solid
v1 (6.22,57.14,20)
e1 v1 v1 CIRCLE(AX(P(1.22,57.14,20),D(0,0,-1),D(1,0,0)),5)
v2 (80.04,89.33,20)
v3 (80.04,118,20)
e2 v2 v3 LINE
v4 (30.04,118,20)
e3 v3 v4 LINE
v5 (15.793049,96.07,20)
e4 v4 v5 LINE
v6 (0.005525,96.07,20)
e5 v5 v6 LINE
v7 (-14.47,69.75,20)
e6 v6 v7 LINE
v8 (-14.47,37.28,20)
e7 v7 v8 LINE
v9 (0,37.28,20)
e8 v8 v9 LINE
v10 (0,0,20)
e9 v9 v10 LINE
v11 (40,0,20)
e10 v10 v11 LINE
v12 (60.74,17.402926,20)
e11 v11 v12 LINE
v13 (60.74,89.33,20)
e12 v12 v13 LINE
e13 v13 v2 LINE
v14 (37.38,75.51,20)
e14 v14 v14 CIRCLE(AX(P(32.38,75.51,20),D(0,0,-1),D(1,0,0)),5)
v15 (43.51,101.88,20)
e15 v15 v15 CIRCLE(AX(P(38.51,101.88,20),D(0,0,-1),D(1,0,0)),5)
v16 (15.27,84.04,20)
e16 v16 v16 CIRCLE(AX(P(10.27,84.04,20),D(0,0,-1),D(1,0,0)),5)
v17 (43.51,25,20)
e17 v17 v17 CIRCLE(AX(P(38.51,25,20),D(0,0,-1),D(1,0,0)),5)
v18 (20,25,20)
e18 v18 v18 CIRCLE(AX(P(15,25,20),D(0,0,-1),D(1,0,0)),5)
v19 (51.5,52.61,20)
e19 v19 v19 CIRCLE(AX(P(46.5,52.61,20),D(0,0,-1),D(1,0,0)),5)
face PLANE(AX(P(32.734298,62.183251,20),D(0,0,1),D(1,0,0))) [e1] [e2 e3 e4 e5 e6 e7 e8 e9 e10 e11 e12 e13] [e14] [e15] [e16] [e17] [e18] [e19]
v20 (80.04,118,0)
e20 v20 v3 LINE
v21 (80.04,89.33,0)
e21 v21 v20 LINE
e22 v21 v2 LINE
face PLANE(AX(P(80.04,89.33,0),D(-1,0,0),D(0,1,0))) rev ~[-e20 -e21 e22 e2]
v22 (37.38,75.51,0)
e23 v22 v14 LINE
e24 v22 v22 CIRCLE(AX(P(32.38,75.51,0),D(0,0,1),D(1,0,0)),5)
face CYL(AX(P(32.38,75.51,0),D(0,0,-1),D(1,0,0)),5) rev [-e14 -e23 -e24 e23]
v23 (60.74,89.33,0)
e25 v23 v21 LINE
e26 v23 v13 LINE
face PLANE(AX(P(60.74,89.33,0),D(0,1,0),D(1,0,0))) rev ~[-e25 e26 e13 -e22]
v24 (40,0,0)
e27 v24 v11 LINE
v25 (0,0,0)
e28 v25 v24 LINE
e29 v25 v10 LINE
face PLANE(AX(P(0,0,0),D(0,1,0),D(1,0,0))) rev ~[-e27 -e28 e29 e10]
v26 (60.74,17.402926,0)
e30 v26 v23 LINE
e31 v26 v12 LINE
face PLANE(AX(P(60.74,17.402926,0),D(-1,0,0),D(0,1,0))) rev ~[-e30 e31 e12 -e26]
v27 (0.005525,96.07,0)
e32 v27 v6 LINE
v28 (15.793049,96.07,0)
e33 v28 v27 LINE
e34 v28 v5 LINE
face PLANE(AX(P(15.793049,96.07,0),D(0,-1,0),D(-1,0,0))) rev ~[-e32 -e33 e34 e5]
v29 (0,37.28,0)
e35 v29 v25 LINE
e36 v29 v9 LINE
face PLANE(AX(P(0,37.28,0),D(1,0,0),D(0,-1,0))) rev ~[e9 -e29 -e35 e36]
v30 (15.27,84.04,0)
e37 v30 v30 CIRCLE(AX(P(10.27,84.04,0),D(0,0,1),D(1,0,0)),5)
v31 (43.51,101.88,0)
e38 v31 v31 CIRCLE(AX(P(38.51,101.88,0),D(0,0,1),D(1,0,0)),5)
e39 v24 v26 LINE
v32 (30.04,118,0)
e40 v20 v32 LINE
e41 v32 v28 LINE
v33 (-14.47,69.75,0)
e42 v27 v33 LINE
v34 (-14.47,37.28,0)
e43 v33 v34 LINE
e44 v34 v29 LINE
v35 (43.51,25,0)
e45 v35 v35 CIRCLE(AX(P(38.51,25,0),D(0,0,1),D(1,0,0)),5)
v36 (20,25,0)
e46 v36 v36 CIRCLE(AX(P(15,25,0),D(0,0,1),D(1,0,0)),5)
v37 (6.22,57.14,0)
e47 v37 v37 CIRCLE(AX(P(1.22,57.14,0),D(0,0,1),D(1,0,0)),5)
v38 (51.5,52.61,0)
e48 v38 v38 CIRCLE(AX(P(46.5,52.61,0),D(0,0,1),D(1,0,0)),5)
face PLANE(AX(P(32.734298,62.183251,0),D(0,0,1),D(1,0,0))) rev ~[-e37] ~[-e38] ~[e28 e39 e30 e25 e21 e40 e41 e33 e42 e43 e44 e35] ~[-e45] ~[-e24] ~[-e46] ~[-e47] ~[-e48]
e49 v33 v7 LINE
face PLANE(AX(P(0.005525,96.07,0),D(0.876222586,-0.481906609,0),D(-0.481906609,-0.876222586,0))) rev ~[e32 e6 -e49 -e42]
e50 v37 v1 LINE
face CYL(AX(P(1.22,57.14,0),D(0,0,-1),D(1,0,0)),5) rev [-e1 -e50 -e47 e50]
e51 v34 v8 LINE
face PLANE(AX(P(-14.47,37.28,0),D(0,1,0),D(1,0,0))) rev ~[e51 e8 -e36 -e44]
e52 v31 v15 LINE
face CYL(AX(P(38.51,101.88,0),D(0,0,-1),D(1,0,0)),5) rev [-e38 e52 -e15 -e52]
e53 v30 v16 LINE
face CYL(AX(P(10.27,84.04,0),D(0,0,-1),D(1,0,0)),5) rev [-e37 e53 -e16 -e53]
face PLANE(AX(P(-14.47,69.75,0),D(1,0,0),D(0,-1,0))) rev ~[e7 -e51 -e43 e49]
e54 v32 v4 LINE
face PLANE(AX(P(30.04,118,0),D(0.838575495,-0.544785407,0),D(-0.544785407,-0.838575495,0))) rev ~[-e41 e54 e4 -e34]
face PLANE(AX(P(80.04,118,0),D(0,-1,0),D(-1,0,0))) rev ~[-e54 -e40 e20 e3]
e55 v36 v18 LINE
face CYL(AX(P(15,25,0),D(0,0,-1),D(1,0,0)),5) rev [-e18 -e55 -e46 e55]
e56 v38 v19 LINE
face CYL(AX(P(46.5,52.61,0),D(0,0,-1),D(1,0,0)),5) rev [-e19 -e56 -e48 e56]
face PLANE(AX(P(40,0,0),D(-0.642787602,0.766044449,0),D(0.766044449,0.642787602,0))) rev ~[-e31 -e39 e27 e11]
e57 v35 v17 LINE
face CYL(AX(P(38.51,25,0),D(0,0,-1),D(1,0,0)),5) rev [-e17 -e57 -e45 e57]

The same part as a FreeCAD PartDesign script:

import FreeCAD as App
import Part
import Sketcher
from FreeCAD import Vector
Q = App.Units.Quantity

doc = App.newDocument("Part")
body = doc.addObject("PartDesign::Body", "Body")

# Sketch on XY plane
sketch1 = body.newObject("Sketcher::SketchObject", "Sketch")
sketch1.AttachmentSupport = (doc.getObject("XY_Plane"), [""])
sketch1.MapMode = "FlatFace"
sketch1.addGeometry([
    Part.LineSegment(Vector(0, 37, 0), Vector(0, 0, 0)),  # 0
    Part.LineSegment(Vector(0, 0, 0), Vector(40, 0, 0)),  # 1
    Part.LineSegment(Vector(40, 0, 0), Vector(61, 17, 0)),  # 2
    Part.LineSegment(Vector(61, 17, 0), Vector(61, 89, 0)),  # 3
    Part.LineSegment(Vector(61, 89, 0), Vector(80, 89, 0)),  # 4
    Part.LineSegment(Vector(80, 89, 0), Vector(80, 118, 0)),  # 5
    Part.LineSegment(Vector(80, 118, 0), Vector(30, 118, 0)),  # 6
    Part.LineSegment(Vector(30, 118, 0), Vector(16, 96, 0)),  # 7
    Part.LineSegment(Vector(16, 96, 0), Vector(0, 96, 0)),  # 8
    Part.LineSegment(Vector(0, 96, 0), Vector(-14, 70, 0)),  # 9
    Part.LineSegment(Vector(-14, 70, 0), Vector(-14, 37, 0)),  # 10
    Part.LineSegment(Vector(-14, 37, 0), Vector(0, 37, 0)),  # 11
], False)
sketch1.addConstraint([
    Sketcher.Constraint("Coincident", 0, 2, 1, 1),
    Sketcher.Constraint("Coincident", 1, 2, 2, 1),
    Sketcher.Constraint("Coincident", 2, 2, 3, 1),
    Sketcher.Constraint("Coincident", 3, 2, 4, 1),
    Sketcher.Constraint("Coincident", 4, 2, 5, 1),
    Sketcher.Constraint("Coincident", 5, 2, 6, 1),
    Sketcher.Constraint("Coincident", 6, 2, 7, 1),
    Sketcher.Constraint("Coincident", 7, 2, 8, 1),
    Sketcher.Constraint("Coincident", 8, 2, 9, 1),
    Sketcher.Constraint("Coincident", 9, 2, 10, 1),
    Sketcher.Constraint("Coincident", 10, 2, 11, 1),
    Sketcher.Constraint("Coincident", 11, 2, 0, 1),
    Sketcher.Constraint("Vertical", 0),
    Sketcher.Constraint("Horizontal", 1),
    Sketcher.Constraint("Vertical", 3),
    Sketcher.Constraint("Horizontal", 4),
    Sketcher.Constraint("Vertical", 5),
    Sketcher.Constraint("Horizontal", 6),
    Sketcher.Constraint("Horizontal", 8),
    Sketcher.Constraint("Vertical", 10),
    Sketcher.Constraint("Horizontal", 11),
    Sketcher.Constraint("Coincident", 0, 2, -1, 1),
    Sketcher.Constraint("DistanceX", 1, 1, 1, 2, Q("40 mm")),
    Sketcher.Constraint("DistanceX", 6, 2, 6, 1, Q("50 mm")),
    Sketcher.Constraint("Angle", 2, Q("39.999999 deg")),
    Sketcher.Constraint("DistanceX", 4, 1, 4, 2, Q("19.3 mm")),
    Sketcher.Constraint("DistanceY", -1, 1, 5, 2, Q("118 mm")),
    Sketcher.Constraint("DistanceX", 11, 1, 11, 2, Q("14.47 mm")),
    Sketcher.Constraint("DistanceY", 0, 2, 0, 1, Q("37.28 mm")),
    Sketcher.Constraint("DistanceY", 5, 1, 5, 2, Q("28.67 mm")),
    Sketcher.Constraint("DistanceY", 10, 2, 10, 1, Q("32.47 mm")),
    Sketcher.Constraint("Angle", 7, Q("-123.01 deg")),
    Sketcher.Constraint("Angle", 9, Q("-118.81 deg")),
    Sketcher.Constraint("DistanceX", -1, 1, 2, 2, Q("60.74 mm")),
    Sketcher.Constraint("DistanceY", -1, 1, 7, 2, Q("96.07 mm")),
])
pad1 = body.newObject("PartDesign::Pad", "Pad")
pad1.Profile = sketch1
pad1.Length = 20

# Sketch on XY plane
sketch2 = body.newObject("Sketcher::SketchObject", "Sketch001")
sketch2.AttachmentSupport = (doc.getObject("XY_Plane"), [""])
sketch2.MapMode = "FlatFace"
sketch2.addGeometry([
    Part.Circle(Vector(15, 25, 0), Vector(0, 0, 1), 5),  # 0
    Part.Circle(Vector(39, 25, 0), Vector(0, 0, 1), 5),  # 1
    Part.Circle(Vector(46, 53, 0), Vector(0, 0, 1), 5),  # 2
    Part.Circle(Vector(1, 57, 0), Vector(0, 0, 1), 5),  # 3
    Part.Circle(Vector(32, 76, 0), Vector(0, 0, 1), 5),  # 4
    Part.Circle(Vector(10, 84, 0), Vector(0, 0, 1), 5),  # 5
    Part.Circle(Vector(39, 102, 0), Vector(0, 0, 1), 5),  # 6
], False)
sketch2.addConstraint([
    Sketcher.Constraint("Equal", 0, 1),
    Sketcher.Constraint("Equal", 1, 2),
    Sketcher.Constraint("Equal", 2, 3),
    Sketcher.Constraint("Equal", 3, 4),
    Sketcher.Constraint("Equal", 4, 5),
    Sketcher.Constraint("Equal", 5, 6),
    Sketcher.Constraint("Horizontal", 0, 3, 1, 3),
    Sketcher.Constraint("Vertical", 1, 3, 6, 3),
    Sketcher.Constraint("Diameter", 0, Q("10 mm")),
    Sketcher.Constraint("DistanceX", -1, 1, 0, 3, Q("15 mm")),
    Sketcher.Constraint("DistanceY", -1, 1, 0, 3, Q("25 mm")),
    Sketcher.Constraint("DistanceX", -1, 1, 2, 3, Q("46.5 mm")),
    Sketcher.Constraint("DistanceY", 2, 3, 4, 3, Q("22.9 mm")),
    Sketcher.Constraint("DistanceY", 3, 3, 5, 3, Q("26.9 mm")),
    Sketcher.Constraint("DistanceX", -1, 1, 1, 3, Q("38.51 mm")),
    Sketcher.Constraint("DistanceY", -1, 1, 2, 3, Q("52.61 mm")),
    Sketcher.Constraint("DistanceX", -1, 1, 3, 3, Q("1.22 mm")),
    Sketcher.Constraint("DistanceY", -1, 1, 3, 3, Q("57.14 mm")),
    Sketcher.Constraint("DistanceX", -1, 1, 4, 3, Q("32.38 mm")),
    Sketcher.Constraint("DistanceX", -1, 1, 5, 3, Q("10.27 mm")),
    Sketcher.Constraint("DistanceY", -1, 1, 6, 3, Q("101.88 mm")),
])
pocket1 = body.newObject("PartDesign::Pocket", "Pocket")
pocket1.Profile = sketch2
pocket1.Type = "ThroughAll"
pocket1.Reversed = True

doc.recompute()
